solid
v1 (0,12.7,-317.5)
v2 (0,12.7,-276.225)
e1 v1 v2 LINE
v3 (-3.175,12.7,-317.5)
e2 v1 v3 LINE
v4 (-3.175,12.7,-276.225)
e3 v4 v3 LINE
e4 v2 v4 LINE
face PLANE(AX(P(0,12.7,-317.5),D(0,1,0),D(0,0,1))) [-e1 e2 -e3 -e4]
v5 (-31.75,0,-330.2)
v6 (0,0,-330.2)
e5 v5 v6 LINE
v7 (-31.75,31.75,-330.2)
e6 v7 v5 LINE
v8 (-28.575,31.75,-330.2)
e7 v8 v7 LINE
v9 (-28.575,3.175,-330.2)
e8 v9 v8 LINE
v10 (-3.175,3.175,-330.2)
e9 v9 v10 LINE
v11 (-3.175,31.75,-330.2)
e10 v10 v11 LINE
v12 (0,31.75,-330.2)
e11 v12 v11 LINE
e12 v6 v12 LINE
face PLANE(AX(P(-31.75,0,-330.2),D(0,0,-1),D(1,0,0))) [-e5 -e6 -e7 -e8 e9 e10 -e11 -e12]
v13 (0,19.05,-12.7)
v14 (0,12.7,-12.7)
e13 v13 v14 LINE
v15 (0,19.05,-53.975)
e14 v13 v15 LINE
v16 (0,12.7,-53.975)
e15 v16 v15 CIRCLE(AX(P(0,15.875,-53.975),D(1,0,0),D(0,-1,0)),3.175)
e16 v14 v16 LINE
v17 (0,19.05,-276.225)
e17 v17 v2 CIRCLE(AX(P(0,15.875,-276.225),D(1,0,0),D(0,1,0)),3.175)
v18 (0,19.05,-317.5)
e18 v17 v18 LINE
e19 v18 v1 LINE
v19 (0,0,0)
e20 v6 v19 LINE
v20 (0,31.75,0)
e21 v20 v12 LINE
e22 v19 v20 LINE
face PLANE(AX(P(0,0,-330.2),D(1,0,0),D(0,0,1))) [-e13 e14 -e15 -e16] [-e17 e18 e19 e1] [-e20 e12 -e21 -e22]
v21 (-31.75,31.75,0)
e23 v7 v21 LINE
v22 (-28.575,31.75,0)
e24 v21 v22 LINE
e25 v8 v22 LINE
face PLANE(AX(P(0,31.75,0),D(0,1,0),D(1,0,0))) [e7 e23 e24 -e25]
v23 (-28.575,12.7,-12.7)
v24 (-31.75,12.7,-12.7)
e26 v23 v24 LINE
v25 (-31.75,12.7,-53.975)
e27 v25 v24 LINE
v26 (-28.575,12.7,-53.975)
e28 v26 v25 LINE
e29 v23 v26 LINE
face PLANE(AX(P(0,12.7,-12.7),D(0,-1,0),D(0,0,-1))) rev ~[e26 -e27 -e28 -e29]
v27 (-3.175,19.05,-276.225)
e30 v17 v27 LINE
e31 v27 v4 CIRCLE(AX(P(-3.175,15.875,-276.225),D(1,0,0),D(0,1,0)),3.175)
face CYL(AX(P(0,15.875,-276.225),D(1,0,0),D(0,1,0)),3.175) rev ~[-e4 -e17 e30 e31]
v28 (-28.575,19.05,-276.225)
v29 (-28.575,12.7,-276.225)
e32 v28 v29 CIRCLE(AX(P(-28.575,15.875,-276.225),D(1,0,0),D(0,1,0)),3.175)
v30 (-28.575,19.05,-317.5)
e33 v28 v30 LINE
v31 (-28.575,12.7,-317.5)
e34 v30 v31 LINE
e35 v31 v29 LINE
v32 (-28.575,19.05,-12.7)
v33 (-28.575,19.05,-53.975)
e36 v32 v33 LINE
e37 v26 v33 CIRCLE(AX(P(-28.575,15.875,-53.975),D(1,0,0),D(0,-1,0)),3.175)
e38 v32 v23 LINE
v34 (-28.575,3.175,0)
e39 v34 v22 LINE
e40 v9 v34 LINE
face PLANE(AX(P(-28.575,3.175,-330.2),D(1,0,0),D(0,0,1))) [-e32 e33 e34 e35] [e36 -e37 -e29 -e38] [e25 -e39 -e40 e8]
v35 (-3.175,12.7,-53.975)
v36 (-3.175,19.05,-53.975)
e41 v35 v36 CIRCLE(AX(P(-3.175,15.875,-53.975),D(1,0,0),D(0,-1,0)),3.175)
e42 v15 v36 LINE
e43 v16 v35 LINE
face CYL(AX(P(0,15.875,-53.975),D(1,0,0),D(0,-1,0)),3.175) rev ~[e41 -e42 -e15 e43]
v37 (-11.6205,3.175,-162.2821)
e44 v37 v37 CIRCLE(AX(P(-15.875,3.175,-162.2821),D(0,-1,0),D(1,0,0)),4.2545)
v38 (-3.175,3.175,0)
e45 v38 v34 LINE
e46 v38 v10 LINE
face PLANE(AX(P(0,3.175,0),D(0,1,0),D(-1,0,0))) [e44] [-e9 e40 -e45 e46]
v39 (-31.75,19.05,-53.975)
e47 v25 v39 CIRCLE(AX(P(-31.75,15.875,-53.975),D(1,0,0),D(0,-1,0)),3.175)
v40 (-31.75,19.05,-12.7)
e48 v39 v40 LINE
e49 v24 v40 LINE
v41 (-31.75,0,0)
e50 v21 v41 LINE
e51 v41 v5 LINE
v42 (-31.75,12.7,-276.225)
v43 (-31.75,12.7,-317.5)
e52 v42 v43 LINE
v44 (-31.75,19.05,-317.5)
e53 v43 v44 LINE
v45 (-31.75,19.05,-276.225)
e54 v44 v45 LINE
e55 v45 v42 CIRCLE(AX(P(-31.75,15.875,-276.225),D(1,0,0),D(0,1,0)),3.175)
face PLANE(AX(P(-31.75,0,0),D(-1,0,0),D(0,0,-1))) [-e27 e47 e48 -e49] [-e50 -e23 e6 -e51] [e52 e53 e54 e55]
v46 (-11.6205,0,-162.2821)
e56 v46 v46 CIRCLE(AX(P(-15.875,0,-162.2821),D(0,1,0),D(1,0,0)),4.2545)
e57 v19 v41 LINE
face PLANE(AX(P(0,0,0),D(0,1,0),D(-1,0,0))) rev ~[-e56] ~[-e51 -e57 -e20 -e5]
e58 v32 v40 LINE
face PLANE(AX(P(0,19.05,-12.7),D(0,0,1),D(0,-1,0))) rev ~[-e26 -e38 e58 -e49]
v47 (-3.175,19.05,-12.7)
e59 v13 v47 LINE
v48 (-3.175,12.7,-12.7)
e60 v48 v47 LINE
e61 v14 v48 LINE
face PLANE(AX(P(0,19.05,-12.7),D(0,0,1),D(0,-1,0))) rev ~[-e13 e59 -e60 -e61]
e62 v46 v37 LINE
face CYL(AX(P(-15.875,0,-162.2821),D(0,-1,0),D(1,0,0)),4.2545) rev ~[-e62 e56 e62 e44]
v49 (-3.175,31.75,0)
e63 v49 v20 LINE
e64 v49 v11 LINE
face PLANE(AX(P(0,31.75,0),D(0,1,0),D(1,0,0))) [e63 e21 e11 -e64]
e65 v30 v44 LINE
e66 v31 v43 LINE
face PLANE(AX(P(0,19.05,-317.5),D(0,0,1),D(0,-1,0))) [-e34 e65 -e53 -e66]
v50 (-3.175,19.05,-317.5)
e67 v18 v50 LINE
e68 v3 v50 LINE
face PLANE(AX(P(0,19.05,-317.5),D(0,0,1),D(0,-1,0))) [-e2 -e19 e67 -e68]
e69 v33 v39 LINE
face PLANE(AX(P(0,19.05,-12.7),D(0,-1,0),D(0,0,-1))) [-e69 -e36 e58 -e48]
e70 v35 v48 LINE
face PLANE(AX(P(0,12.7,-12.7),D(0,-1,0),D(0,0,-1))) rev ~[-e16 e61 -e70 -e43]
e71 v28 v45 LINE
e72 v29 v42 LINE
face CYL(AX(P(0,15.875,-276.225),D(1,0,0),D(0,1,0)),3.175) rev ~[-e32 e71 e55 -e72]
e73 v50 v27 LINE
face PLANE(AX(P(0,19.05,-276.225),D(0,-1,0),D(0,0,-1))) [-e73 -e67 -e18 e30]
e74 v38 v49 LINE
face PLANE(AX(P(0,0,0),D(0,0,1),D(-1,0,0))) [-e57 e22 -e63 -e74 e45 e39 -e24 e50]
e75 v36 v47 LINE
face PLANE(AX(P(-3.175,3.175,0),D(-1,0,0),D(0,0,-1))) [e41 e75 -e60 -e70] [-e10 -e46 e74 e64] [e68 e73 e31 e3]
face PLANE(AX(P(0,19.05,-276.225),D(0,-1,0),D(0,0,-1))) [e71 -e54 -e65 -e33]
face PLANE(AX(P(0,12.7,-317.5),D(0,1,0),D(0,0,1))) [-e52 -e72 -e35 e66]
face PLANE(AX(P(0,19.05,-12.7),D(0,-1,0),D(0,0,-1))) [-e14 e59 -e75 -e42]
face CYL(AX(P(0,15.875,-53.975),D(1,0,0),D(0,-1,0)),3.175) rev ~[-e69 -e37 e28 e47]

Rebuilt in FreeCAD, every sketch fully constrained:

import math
import FreeCAD as App
import Part
import Sketcher
from FreeCAD import Vector
Q = App.Units.Quantity

doc = App.newDocument("Part")
params = doc.addObject("Spreadsheet::Sheet", "Params")
for row, (alias, value) in enumerate([
    ("sketch1_height", "13 in"),
    ("sketch1_width", "1.25 in"),
    ("pad1_length", "0.125 in"),
    ("sketch2_width", "0.125 in"),
    ("sketch2_height", "13 in"),
    ("pad2_length", "1.125 in"),
    ("sketch3_diameter", "0.335 in"),
    ("sketch4_radius", "0.125 in"),
    ("sketch4_height", "1.625 in"),
], start=1):
    params.set(f"A{row}", alias)
    params.set(f"B{row}", "=" + value)
    params.setAlias(f"B{row}", alias)

body = doc.addObject("PartDesign::Body", "Body")

# Sketch on XZ plane
sketch1 = doc.addObject("Sketcher::SketchObject", "Sketch")
body.addObject(sketch1)
sketch1.AttachmentSupport = (doc.XZ_Plane, [""])
sketch1.MapMode = "FlatFace"
sketch1.addGeometry(Part.LineSegment(Vector(-32, 0, 0), Vector(0, 0, 0)), False)
sketch1.addGeometry(Part.LineSegment(Vector(0, 0, 0), Vector(0, -330, 0)), False)
sketch1.addGeometry(Part.LineSegment(Vector(0, -330, 0), Vector(-32, -330, 0)), False)
sketch1.addGeometry(Part.LineSegment(Vector(-32, -330, 0), Vector(-32, 0, 0)), False)
sketch1.addConstraint(Sketcher.Constraint("Coincident", 0, 2, 1, 1))
sketch1.addConstraint(Sketcher.Constraint("Coincident", 1, 2, 2, 1))
sketch1.addConstraint(Sketcher.Constraint("Coincident", 2, 2, 3, 1))
sketch1.addConstraint(Sketcher.Constraint("Coincident", 3, 2, 0, 1))
sketch1.addConstraint(Sketcher.Constraint("Horizontal", 0))
sketch1.addConstraint(Sketcher.Constraint("Vertical", 1))
sketch1.addConstraint(Sketcher.Constraint("Horizontal", 2))
sketch1.addConstraint(Sketcher.Constraint("Vertical", 3))
sketch1.addConstraint(Sketcher.Constraint("Coincident", 0, 2, -1, 1))
sketch1.addConstraint(Sketcher.Constraint("DistanceY", 1, 2, 1, 1, Q("13 in")))
sketch1.addConstraint(Sketcher.Constraint("DistanceX", 0, 1, 0, 2, Q("1.25 in")))
sketch1.setExpression("Constraints[9]", "Params.sketch1_height")
sketch1.setExpression("Constraints[10]", "Params.sketch1_width")
pad1 = doc.addObject("PartDesign::Pad", "Pad")
body.addObject(pad1)
pad1.Profile = sketch1
pad1.setExpression("Length", "Params.pad1_length")
pad1.Reversed = True

# Sketch on XZ plane
sketch2 = doc.addObject("Sketcher::SketchObject", "Sketch001")
body.addObject(sketch2)
sketch2.AttachmentSupport = (doc.XZ_Plane, [""])
sketch2.MapMode = "FlatFace"
sketch2.AttachmentOffset = App.Placement(Vector(0, 0, -0.125 * 25.4), App.Rotation())
sketch2.addGeometry(Part.LineSegment(Vector(-28.6, -330.2, 0), Vector(-31.8, -330.2, 0)), False)
sketch2.addGeometry(Part.LineSegment(Vector(-31.8, -330.2, 0), Vector(-31.8, 0, 0)), False)
sketch2.addGeometry(Part.LineSegment(Vector(-31.8, 0, 0), Vector(-28.6, 0, 0)), False)
sketch2.addGeometry(Part.LineSegment(Vector(-28.6, 0, 0), Vector(-28.6, -330.2, 0)), False)
sketch2.addGeometry(Part.LineSegment(Vector(0, -330.2, 0), Vector(-3.2, -330.2, 0)), False)
sketch2.addGeometry(Part.LineSegment(Vector(-3.2, -330.2, 0), Vector(-3.2, 0, 0)), False)
sketch2.addGeometry(Part.LineSegment(Vector(-3.2, 0, 0), Vector(0, 0, 0)), False)
sketch2.addGeometry(Part.LineSegment(Vector(0, 0, 0), Vector(0, -330.2, 0)), False)
sketch2.addConstraint(Sketcher.Constraint("Coincident", 0, 2, 1, 1))
sketch2.addConstraint(Sketcher.Constraint("Coincident", 1, 2, 2, 1))
sketch2.addConstraint(Sketcher.Constraint("Coincident", 2, 2, 3, 1))
sketch2.addConstraint(Sketcher.Constraint("Coincident", 3, 2, 0, 1))
sketch2.addConstraint(Sketcher.Constraint("Coincident", 4, 2, 5, 1))
sketch2.addConstraint(Sketcher.Constraint("Coincident", 5, 2, 6, 1))
sketch2.addConstraint(Sketcher.Constraint("Coincident", 6, 2, 7, 1))
sketch2.addConstraint(Sketcher.Constraint("Coincident", 7, 2, 4, 1))
sketch2.addConstraint(Sketcher.Constraint("Horizontal", 0))
sketch2.addConstraint(Sketcher.Constraint("Vertical", 1))
sketch2.addConstraint(Sketcher.Constraint("Horizontal", 2))
sketch2.addConstraint(Sketcher.Constraint("Vertical", 3))
sketch2.addConstraint(Sketcher.Constraint("Horizontal", 4))
sketch2.addConstraint(Sketcher.Constraint("Vertical", 5))
sketch2.addConstraint(Sketcher.Constraint("Horizontal", 6))
sketch2.addConstraint(Sketcher.Constraint("Vertical", 7))
sketch2.addConstraint(Sketcher.Constraint("Coincident", 6, 2, -1, 1))
sketch2.addConstraint(Sketcher.Constraint("PointOnObject", 1, 2, -1))
sketch2.addConstraint(Sketcher.Constraint("Horizontal", 3, 2, 4, 2))
sketch2.addConstraint(Sketcher.Constraint("Equal", 2, 4))
sketch2.addConstraint(Sketcher.Constraint("DistanceX", 0, 2, 0, 1, Q("0.125 in")))
sketch2.addConstraint(Sketcher.Constraint("DistanceY", 1, 1, 1, 2, Q("13 in")))
sketch2.addConstraint(Sketcher.Constraint("DistanceX", 3, 2, 4, 2, Q("1 in")))
sketch2.setExpression("Constraints[20]", "Params.sketch2_width")
sketch2.setExpression("Constraints[21]", "Params.sketch2_height")
pad2 = doc.addObject("PartDesign::Pad", "Pad001")
body.addObject(pad2)
pad2.Profile = sketch2
pad2.setExpression("Length", "Params.pad2_length")
pad2.Reversed = True

# Sketch on XZ plane
sketch3 = doc.addObject("Sketcher::SketchObject", "Sketch002")
body.addObject(sketch3)
sketch3.AttachmentSupport = (doc.XZ_Plane, [""])
sketch3.MapMode = "FlatFace"
sketch3.addGeometry(Part.Circle(Vector(-15.9, -162.3, 0), Vector(0, 0, 1), 4.3), False)
sketch3.addConstraint(Sketcher.Constraint("Diameter", 0, Q("0.335 in")))
sketch3.addConstraint(Sketcher.Constraint("DistanceX", 0, 3, -1, 1, Q("0.625 in")))
sketch3.addConstraint(Sketcher.Constraint("DistanceY", 0, 3, -1, 1, 162.282))
sketch3.setExpression("Constraints[0]", "Params.sketch3_diameter")
pocket1 = doc.addObject("PartDesign::Pocket", "Pocket")
body.addObject(pocket1)
pocket1.Profile = sketch3
pocket1.Type = "ThroughAll"

# Sketch on YZ plane
sketch4 = doc.addObject("Sketcher::SketchObject", "Sketch003")
body.addObject(sketch4)
sketch4.AttachmentSupport = (doc.YZ_Plane, [""])
sketch4.MapMode = "FlatFace"
sketch4.addGeometry(Part.LineSegment(Vector(19.1, -54, 0), Vector(19.1, -12.7, 0)), False)
sketch4.addGeometry(Part.LineSegment(Vector(19.1, -12.7, 0), Vector(12.7, -12.7, 0)), False)
sketch4.addGeometry(Part.LineSegment(Vector(12.7, -12.7, 0), Vector(12.7, -54, 0)), False)
sketch4.addGeometry(Part.ArcOfCircle(Part.Circle(Vector(15.9, -54, 0), Vector(0, 0, 1), 3.2), math.radians(180), math.radians(360)), False)
sketch4.addGeometry(Part.LineSegment(Vector(12.7, -317.5, 0), Vector(19.1, -317.5, 0)), False)
sketch4.addGeometry(Part.LineSegment(Vector(19.1, -317.5, 0), Vector(19.1, -276.2, 0)), False)
sketch4.addGeometry(Part.ArcOfCircle(Part.Circle(Vector(15.9, -276.2, 0), Vector(0, 0, 1), 3.2), math.radians(0), math.radians(180)), False)
sketch4.addGeometry(Part.LineSegment(Vector(12.7, -276.2, 0), Vector(12.7, -317.5, 0)), False)
sketch4.addConstraint(Sketcher.Constraint("Coincident", 0, 2, 1, 1))
sketch4.addConstraint(Sketcher.Constraint("Coincident", 1, 2, 2, 1))
sketch4.addConstraint(Sketcher.Constraint("Tangent", 2, 2, 3, 1))
sketch4.addConstraint(Sketcher.Constraint("Tangent", 3, 2, 0, 1))
sketch4.addConstraint(Sketcher.Constraint("Coincident", 4, 2, 5, 1))
sketch4.addConstraint(Sketcher.Constraint("Tangent", 5, 2, 6, 1))
sketch4.addConstraint(Sketcher.Constraint("Tangent", 6, 2, 7, 1))
sketch4.addConstraint(Sketcher.Constraint("Coincident", 7, 2, 4, 1))
sketch4.addConstraint(Sketcher.Constraint("Vertical", 0))
sketch4.addConstraint(Sketcher.Constraint("Horizontal", 1))
sketch4.addConstraint(Sketcher.Constraint("Vertical", 2))
sketch4.addConstraint(Sketcher.Constraint("Horizontal", 4))
sketch4.addConstraint(Sketcher.Constraint("Vertical", 5))
sketch4.addConstraint(Sketcher.Constraint("Vertical", 7))
sketch4.addConstraint(Sketcher.Constraint("Equal", 3, 6))
sketch4.addConstraint(Sketcher.Constraint("Vertical", 3, 3, 6, 3))
sketch4.addConstraint(Sketcher.Constraint("Equal", 2, 5))
sketch4.addConstraint(Sketcher.Constraint("Radius", 3, Q("0.125 in")))
sketch4.addConstraint(Sketcher.Constraint("DistanceY", 4, 2, 0, 2, Q("12 in")))
sketch4.addConstraint(Sketcher.Constraint("DistanceY", 0, 2, -1, 1, Q("0.5 in")))
sketch4.addConstraint(Sketcher.Constraint("DistanceX", -1, 1, 1, 2, Q("0.5 in")))
sketch4.addConstraint(Sketcher.Constraint("DistanceY", 0, 1, 0, 2, Q("1.625 in")))
sketch4.setExpression("Constraints[17]", "Params.sketch4_radius")
sketch4.setExpression("Constraints[21]", "Params.sketch4_height")
pocket2 = doc.addObject("PartDesign::Pocket", "Pocket001")
body.addObject(pocket2)
pocket2.Profile = sketch4
pocket2.Type = "ThroughAll"

doc.recompute()
